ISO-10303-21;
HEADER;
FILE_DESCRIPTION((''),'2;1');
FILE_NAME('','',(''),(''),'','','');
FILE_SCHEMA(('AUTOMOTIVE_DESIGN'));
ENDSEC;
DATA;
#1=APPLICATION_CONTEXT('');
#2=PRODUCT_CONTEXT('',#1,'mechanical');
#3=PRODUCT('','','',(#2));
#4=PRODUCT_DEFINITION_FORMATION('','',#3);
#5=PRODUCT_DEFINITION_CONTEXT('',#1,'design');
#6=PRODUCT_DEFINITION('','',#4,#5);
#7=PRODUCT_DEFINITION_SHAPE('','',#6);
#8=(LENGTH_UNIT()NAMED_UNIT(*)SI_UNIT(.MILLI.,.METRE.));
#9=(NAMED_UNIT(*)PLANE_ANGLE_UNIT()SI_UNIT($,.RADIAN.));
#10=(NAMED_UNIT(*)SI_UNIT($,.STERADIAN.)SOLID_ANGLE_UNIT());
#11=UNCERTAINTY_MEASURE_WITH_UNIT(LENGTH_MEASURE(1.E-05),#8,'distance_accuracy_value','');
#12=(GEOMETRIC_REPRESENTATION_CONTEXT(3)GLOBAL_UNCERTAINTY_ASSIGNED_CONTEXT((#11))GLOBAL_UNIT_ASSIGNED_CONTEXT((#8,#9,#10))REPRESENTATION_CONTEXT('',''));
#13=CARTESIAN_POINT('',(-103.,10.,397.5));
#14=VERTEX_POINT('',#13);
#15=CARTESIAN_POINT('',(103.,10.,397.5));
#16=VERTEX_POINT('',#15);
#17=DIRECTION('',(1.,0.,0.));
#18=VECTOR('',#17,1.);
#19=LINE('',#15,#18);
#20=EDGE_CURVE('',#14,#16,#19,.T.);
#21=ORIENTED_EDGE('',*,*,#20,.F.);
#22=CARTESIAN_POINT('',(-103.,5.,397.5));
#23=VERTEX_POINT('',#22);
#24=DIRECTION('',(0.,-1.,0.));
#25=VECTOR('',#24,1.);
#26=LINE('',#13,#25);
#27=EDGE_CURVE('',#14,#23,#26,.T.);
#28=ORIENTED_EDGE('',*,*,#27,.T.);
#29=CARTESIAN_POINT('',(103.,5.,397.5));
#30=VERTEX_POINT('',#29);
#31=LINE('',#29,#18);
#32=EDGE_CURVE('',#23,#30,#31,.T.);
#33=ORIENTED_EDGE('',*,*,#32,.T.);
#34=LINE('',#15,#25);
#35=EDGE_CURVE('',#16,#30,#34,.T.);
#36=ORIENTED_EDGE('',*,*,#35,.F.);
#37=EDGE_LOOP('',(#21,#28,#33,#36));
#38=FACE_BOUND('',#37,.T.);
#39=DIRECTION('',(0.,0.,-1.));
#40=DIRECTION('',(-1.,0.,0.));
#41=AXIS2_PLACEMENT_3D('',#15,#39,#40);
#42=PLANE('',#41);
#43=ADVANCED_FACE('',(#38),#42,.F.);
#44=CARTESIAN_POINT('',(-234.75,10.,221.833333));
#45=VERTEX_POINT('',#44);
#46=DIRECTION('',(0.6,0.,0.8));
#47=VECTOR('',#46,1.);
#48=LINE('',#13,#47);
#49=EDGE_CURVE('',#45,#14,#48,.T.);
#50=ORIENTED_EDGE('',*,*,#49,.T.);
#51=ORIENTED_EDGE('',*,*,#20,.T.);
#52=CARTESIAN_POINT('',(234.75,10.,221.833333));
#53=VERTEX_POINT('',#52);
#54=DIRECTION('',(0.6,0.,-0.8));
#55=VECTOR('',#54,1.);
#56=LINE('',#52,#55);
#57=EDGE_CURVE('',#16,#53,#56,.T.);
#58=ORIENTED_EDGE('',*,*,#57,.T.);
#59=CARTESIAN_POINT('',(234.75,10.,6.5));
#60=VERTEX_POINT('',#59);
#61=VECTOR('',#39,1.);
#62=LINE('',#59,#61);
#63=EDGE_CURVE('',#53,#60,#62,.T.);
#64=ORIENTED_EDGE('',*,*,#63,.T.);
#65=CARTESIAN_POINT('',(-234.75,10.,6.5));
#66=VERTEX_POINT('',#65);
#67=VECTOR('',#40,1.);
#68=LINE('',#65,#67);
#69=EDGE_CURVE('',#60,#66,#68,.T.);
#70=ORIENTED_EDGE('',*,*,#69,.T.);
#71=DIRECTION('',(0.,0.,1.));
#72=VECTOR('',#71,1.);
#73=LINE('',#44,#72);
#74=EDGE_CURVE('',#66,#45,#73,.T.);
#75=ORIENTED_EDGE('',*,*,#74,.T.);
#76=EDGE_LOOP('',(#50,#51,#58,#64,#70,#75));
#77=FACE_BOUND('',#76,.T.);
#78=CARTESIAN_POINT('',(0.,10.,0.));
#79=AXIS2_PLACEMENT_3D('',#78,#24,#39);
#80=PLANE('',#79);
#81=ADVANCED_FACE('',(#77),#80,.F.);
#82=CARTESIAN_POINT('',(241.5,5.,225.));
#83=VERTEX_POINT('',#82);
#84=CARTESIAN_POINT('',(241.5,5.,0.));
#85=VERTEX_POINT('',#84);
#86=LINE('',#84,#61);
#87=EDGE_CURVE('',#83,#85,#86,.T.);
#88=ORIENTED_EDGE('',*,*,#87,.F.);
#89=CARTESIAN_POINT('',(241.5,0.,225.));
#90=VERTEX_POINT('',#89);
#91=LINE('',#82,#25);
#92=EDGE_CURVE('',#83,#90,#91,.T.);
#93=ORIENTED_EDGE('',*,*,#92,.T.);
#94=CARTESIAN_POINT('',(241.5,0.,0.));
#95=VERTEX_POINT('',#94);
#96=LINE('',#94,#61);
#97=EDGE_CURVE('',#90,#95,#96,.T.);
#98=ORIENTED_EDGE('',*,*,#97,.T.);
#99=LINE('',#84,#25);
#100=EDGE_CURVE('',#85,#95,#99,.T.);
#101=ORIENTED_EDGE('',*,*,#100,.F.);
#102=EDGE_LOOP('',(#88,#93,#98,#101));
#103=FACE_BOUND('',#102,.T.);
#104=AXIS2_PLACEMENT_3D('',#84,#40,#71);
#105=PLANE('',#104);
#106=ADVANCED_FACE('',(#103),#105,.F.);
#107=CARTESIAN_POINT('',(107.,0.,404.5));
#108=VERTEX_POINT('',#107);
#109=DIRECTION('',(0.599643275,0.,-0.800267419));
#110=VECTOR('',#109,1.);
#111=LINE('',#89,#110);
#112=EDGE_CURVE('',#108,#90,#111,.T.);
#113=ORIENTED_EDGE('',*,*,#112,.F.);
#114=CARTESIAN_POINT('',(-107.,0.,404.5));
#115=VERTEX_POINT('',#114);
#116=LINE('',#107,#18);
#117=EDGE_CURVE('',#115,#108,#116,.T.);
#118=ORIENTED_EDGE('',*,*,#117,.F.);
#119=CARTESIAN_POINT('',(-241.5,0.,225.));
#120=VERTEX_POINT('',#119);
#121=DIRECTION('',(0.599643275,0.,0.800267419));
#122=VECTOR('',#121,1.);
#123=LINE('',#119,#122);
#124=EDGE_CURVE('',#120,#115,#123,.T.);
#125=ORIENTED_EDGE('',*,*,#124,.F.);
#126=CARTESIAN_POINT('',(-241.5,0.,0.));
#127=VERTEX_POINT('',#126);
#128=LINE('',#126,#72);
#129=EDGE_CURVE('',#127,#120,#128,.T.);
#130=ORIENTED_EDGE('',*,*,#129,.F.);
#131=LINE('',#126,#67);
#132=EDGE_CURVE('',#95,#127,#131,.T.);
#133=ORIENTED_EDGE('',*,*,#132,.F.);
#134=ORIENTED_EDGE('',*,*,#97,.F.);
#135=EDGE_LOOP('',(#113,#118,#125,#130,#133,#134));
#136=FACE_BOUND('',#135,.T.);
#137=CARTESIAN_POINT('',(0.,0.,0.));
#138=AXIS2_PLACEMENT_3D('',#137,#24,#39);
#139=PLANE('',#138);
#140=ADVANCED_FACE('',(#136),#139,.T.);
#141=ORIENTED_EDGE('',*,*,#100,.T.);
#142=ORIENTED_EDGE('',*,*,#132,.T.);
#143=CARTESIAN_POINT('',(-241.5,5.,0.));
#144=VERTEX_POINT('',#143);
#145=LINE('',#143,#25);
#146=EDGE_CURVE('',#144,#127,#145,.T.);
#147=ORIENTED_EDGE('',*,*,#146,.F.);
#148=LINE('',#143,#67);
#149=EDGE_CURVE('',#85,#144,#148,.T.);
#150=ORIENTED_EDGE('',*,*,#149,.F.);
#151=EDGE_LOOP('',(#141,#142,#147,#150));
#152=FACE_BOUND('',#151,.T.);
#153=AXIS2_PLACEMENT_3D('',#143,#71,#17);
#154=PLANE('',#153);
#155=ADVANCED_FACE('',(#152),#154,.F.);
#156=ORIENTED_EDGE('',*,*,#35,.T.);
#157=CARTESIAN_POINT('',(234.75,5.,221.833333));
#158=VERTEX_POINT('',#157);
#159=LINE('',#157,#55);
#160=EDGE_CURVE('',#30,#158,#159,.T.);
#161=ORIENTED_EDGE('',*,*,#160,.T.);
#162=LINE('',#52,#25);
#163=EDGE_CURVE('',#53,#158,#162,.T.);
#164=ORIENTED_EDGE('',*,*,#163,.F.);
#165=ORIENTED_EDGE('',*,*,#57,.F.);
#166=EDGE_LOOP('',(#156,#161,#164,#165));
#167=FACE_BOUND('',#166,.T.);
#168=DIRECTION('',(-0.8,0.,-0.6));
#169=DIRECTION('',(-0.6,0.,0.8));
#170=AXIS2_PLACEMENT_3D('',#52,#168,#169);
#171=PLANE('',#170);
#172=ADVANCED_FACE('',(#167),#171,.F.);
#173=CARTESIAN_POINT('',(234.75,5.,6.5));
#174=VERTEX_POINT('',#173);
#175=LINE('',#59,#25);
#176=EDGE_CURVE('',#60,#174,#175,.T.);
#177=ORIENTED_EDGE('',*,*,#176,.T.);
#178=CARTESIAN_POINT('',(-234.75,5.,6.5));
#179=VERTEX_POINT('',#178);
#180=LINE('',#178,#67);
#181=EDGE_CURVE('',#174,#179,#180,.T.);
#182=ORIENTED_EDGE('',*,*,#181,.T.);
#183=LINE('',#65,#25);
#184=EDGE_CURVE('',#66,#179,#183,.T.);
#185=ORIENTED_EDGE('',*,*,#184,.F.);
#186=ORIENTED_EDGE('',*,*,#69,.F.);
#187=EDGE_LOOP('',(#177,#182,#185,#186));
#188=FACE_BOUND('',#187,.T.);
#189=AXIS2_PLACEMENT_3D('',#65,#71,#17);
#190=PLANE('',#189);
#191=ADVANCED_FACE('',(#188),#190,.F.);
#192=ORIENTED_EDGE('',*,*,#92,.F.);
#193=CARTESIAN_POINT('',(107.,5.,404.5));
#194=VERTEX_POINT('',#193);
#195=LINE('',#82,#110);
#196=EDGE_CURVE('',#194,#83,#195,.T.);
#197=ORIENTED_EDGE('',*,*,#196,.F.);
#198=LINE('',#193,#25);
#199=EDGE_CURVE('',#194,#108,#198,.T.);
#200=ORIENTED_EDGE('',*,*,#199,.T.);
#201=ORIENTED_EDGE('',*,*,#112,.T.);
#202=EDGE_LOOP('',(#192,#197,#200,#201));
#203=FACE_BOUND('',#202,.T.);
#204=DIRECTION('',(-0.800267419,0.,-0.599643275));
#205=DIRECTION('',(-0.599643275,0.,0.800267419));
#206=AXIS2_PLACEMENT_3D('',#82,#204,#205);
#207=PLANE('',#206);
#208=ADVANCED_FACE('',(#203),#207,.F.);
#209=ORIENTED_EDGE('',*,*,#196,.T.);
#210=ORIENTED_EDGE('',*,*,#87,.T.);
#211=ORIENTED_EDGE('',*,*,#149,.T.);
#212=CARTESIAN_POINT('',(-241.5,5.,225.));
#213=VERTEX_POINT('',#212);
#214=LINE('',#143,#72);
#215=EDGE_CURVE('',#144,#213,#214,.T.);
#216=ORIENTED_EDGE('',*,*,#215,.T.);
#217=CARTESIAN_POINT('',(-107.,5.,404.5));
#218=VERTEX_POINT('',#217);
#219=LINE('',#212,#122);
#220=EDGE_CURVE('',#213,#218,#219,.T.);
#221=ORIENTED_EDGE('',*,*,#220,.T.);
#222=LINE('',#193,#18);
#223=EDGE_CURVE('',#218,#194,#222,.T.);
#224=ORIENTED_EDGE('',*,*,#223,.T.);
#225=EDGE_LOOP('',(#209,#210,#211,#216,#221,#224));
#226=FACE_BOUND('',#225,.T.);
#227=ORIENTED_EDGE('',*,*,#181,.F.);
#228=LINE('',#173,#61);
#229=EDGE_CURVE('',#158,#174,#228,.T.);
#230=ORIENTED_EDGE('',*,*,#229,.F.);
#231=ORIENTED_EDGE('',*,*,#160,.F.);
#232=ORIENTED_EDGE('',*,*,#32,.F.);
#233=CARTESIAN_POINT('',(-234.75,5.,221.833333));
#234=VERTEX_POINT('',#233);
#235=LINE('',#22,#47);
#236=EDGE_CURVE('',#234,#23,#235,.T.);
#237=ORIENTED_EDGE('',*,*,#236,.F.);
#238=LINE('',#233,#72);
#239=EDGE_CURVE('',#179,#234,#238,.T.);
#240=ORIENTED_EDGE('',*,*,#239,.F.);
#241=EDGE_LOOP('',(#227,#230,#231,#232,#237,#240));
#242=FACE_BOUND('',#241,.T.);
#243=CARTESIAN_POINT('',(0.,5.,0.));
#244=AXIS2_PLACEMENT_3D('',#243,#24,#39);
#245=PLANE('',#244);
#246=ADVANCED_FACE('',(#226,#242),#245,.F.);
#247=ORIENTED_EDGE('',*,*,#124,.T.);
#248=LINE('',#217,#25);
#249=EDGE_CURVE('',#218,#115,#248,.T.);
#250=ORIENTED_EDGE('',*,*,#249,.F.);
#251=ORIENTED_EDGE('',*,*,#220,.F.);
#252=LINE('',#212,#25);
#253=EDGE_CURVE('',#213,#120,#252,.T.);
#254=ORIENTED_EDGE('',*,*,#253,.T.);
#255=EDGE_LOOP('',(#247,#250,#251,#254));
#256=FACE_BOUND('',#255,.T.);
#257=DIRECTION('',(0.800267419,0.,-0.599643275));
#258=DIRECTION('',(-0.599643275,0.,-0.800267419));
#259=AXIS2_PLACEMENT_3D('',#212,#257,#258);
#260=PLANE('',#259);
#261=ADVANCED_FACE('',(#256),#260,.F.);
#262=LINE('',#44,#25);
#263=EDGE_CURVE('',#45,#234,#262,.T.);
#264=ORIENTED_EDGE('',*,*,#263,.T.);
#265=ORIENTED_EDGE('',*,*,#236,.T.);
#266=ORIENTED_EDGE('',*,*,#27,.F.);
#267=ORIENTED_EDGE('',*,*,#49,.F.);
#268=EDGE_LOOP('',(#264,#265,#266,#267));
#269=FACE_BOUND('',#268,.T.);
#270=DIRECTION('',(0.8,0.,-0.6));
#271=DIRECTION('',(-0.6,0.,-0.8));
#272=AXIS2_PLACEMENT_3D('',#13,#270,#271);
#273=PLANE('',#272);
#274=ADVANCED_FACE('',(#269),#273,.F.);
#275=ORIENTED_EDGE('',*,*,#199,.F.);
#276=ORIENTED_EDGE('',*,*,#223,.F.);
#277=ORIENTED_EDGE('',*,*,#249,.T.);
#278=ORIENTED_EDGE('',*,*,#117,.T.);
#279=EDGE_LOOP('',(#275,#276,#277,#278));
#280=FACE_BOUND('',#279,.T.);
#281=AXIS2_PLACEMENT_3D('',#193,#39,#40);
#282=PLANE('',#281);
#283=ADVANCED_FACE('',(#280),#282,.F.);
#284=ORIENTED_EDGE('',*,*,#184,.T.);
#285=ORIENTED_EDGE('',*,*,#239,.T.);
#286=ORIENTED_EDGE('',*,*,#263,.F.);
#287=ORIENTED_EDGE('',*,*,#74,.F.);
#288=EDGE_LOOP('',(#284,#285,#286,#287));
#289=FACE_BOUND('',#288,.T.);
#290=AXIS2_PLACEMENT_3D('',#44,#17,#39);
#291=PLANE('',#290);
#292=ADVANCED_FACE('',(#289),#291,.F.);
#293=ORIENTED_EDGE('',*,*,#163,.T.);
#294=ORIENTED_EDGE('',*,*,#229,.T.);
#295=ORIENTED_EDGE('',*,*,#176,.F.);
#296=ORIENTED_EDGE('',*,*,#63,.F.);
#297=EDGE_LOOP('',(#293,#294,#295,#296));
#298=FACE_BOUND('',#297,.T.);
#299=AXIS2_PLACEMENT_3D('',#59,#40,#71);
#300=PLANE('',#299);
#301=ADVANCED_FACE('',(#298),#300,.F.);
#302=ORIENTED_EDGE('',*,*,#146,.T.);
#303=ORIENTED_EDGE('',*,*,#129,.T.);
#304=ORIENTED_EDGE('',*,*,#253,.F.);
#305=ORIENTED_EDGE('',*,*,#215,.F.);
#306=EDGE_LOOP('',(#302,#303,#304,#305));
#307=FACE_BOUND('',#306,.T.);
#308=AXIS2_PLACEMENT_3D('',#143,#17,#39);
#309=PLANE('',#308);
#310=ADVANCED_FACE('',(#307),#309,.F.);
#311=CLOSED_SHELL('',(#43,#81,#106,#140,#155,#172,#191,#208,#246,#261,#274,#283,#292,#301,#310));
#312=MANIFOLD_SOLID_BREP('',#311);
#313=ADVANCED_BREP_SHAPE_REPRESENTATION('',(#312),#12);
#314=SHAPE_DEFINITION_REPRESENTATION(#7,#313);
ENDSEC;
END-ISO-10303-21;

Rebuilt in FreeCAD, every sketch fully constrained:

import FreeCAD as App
import Part
import Sketcher
from FreeCAD import Vector

doc = App.newDocument("Part")
body = doc.addObject("PartDesign::Body", "Body")

sketch1 = body.newObject("Sketcher::SketchObject", "Sketch")
sketch1.AttachmentSupport = (doc.getObject("XZ_Plane"), [""])
sketch1.MapMode = "FlatFace"
sketch1.addGeometry([
    Part.LineSegment(Vector(242, 0, 0), Vector(-242, 0, 0)),
    Part.LineSegment(Vector(-242, 0, 0), Vector(-242, 225, 0)),
    Part.LineSegment(Vector(-242, 225, 0), Vector(-107, 404, 0)),
    Part.LineSegment(Vector(-107, 404, 0), Vector(107, 404, 0)),
    Part.LineSegment(Vector(107, 404, 0), Vector(242, 225, 0)),
    Part.LineSegment(Vector(242, 225, 0), Vector(242, 0, 0)),
], False)
sketch1.addConstraint([
    Sketcher.Constraint("Coincident", 0, 2, 1, 1),
    Sketcher.Constraint("Coincident", 1, 2, 2, 1),
    Sketcher.Constraint("Coincident", 2, 2, 3, 1),
    Sketcher.Constraint("Coincident", 3, 2, 4, 1),
    Sketcher.Constraint("Coincident", 4, 2, 5, 1),
    Sketcher.Constraint("Coincident", 5, 2, 0, 1),
    Sketcher.Constraint("Horizontal", 0),
    Sketcher.Constraint("Vertical", 1),
    Sketcher.Constraint("Horizontal", 3),
    Sketcher.Constraint("Vertical", 5),
    Sketcher.Constraint("Symmetric", 0, 2, 5, 2, -1, 1),
    Sketcher.Constraint("Horizontal", 1, 2, 4, 2),
    Sketcher.Constraint("Equal", 2, 4),
    Sketcher.Constraint("DistanceX", 0, 2, 0, 1, 483.0),
    Sketcher.Constraint("DistanceX", 3, 1, 3, 2, 214.0),
    Sketcher.Constraint("DistanceY", 1, 1, 1, 2, 225.0),
    Sketcher.Constraint("DistanceY", -1, 1, 2, 2, 404.5),
])
pad1 = body.newObject("PartDesign::Pad", "Pad")
pad1.Profile = sketch1
pad1.Length = 5
pad1.Reversed = True

sketch2 = body.newObject("Sketcher::SketchObject", "Sketch001")
sketch2.AttachmentSupport = (doc.getObject("XZ_Plane"), [""])
sketch2.MapMode = "FlatFace"
sketch2.AttachmentOffset = App.Placement(Vector(0, 0, -5), App.Rotation())
sketch2.addGeometry([
    Part.LineSegment(Vector(235, 6, 0), Vector(-235, 6, 0)),
    Part.LineSegment(Vector(-235, 6, 0), Vector(-235, 222, 0)),
    Part.LineSegment(Vector(-235, 222, 0), Vector(-103, 398, 0)),
    Part.LineSegment(Vector(-103, 398, 0), Vector(103, 398, 0)),
    Part.LineSegment(Vector(103, 398, 0), Vector(235, 222, 0)),
    Part.LineSegment(Vector(235, 222, 0), Vector(235, 6, 0)),
], False)
sketch2.addConstraint([
    Sketcher.Constraint("Coincident", 0, 2, 1, 1),
    Sketcher.Constraint("Coincident", 1, 2, 2, 1),
    Sketcher.Constraint("Coincident", 2, 2, 3, 1),
    Sketcher.Constraint("Coincident", 3, 2, 4, 1),
    Sketcher.Constraint("Coincident", 4, 2, 5, 1),
    Sketcher.Constraint("Coincident", 5, 2, 0, 1),
    Sketcher.Constraint("Horizontal", 0),
    Sketcher.Constraint("Vertical", 1),
    Sketcher.Constraint("Horizontal", 3),
    Sketcher.Constraint("Vertical", 5),
    Sketcher.Constraint("Symmetric", 1, 2, 4, 2, -2),
    Sketcher.Constraint("Equal", 2, 4),
    Sketcher.Constraint("DistanceX", 3, 1, 3, 2, 206.0),
    Sketcher.Constraint("DistanceX", 0, 2, 0, 1, 469.5),
    Sketcher.Constraint("DistanceY", 0, 2, 2, 2, 391.0),
    Sketcher.Constraint("DistanceY", -1, 1, 0, 2, 6.5),
    Sketcher.Constraint("DistanceY", 1, 1, 1, 2, 215.333333),
])
pad2 = body.newObject("PartDesign::Pad", "Pad001")
pad2.Profile = sketch2
pad2.Length = 5
pad2.Reversed = True

doc.recompute()
